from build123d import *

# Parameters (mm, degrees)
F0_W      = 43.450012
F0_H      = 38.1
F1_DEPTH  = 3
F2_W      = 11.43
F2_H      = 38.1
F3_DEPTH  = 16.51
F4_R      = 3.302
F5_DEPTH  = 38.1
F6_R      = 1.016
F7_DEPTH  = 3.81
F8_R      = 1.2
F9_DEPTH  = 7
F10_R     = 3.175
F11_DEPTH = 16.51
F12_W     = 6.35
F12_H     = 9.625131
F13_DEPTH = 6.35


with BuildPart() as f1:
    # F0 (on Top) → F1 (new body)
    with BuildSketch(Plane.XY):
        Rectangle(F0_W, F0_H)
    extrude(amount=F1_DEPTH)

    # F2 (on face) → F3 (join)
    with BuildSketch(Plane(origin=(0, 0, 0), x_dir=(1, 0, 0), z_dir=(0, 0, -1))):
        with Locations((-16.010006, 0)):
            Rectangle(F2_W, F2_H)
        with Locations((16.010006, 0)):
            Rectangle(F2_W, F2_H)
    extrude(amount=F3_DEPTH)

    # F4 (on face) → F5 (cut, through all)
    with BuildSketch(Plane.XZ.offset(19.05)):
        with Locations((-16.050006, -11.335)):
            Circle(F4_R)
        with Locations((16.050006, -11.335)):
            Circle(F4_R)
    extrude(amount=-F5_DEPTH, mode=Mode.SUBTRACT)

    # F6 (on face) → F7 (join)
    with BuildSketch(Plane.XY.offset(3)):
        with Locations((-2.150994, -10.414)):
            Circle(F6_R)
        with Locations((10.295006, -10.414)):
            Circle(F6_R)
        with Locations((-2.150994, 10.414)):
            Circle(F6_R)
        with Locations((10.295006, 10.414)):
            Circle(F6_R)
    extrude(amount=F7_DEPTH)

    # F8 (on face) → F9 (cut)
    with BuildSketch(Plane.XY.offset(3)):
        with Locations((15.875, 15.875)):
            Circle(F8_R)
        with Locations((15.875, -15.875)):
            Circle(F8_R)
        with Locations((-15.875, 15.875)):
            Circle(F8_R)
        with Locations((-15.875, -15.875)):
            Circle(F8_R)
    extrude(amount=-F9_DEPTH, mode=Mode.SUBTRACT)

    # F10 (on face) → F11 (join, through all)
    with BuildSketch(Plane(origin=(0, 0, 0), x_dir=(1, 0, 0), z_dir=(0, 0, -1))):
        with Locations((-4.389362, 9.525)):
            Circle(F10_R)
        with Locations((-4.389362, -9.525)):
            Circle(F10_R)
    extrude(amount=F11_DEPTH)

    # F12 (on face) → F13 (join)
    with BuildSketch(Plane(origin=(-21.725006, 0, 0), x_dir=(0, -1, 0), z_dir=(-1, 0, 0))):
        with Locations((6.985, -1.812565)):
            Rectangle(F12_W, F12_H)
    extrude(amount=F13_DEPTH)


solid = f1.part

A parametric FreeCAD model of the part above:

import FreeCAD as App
import Part
import Sketcher

V = App.Vector
Q = App.Units.Quantity

doc = App.newDocument("Part")
params = doc.addObject("Spreadsheet::Sheet", "Params")
for row, (alias, value) in enumerate([
    ("sketch1_height", "1.5 in"),
    ("pad1_length", "3 mm"),
    ("sketch2_height", "1.5 in"),
    ("sketch2_width", "0.45 in"),
    ("pad2_length", "0.65 in"),
    ("sketch3_diameter", "0.26 in"),
    ("sketch4_diameter", "0.08 in"),
    ("pad3_length", "0.15 in"),
    ("pocket2_length", "7 mm"),
    ("sketch6_diameter", "0.25 in"),
    ("pad4_length", "0.65 in"),
    ("sketch7_width", "0.25 in"),
    ("pad5_length", "0.25 in"),
], start=1):
    params.set(f"A{row}", alias)
    params.set(f"B{row}", "=" + value)
    params.setAlias(f"B{row}", alias)

body = doc.addObject("PartDesign::Body", "Body")

sketch1 = body.newObject("Sketcher::SketchObject", "Sketch")
sketch1.AttachmentSupport = (doc.getObject("XY_Plane"), [""])
sketch1.MapMode = "FlatFace"
sketch1.addGeometry([
    Part.LineSegment(V(-22, 19, 0), V(-22, -19, 0)),
    Part.LineSegment(V(-22, -19, 0), V(22, -19, 0)),
    Part.LineSegment(V(22, -19, 0), V(22, 19, 0)),
    Part.LineSegment(V(22, 19, 0), V(-22, 19, 0)),
], False)
sketch1.addConstraint([
    Sketcher.Constraint("Coincident", 0, 2, 1, 1),
    Sketcher.Constraint("Coincident", 1, 2, 2, 1),
    Sketcher.Constraint("Coincident", 2, 2, 3, 1),
    Sketcher.Constraint("Coincident", 3, 2, 0, 1),
    Sketcher.Constraint("Vertical", 0),
    Sketcher.Constraint("Horizontal", 1),
    Sketcher.Constraint("Vertical", 2),
    Sketcher.Constraint("Horizontal", 3),
    Sketcher.Constraint("Symmetric", 0, 2, 2, 2, -1, 1),
    Sketcher.Constraint("DistanceY", 0, 2, 0, 1, Q("1.5 in")),
    Sketcher.Constraint("DistanceX", 1, 1, 1, 2, Q("43.450012 mm")),
])
sketch1.setExpression("Constraints[9]", "Params.sketch1_height")
pad1 = body.newObject("PartDesign::Pad", "Pad")
pad1.Profile = sketch1
pad1.setExpression("Length", "Params.pad1_length")

sketch2 = body.newObject("Sketcher::SketchObject", "Sketch001")
sketch2.AttachmentSupport = (doc.getObject("XY_Plane"), [""])
sketch2.MapMode = "FlatFace"
sketch2.addGeometry([
    Part.LineSegment(V(-22, -19, 0), V(-22, 19, 0)),
    Part.LineSegment(V(-22, 19, 0), V(-10, 19, 0)),
    Part.LineSegment(V(-10, 19, 0), V(-10, -19, 0)),
    Part.LineSegment(V(-10, -19, 0), V(-22, -19, 0)),
    Part.LineSegment(V(10, -19, 0), V(10, 19, 0)),
    Part.LineSegment(V(10, 19, 0), V(22, 19, 0)),
    Part.LineSegment(V(22, 19, 0), V(22, -19, 0)),
    Part.LineSegment(V(22, -19, 0), V(10, -19, 0)),
], False)
sketch2.addConstraint([
    Sketcher.Constraint("Coincident", 0, 2, 1, 1),
    Sketcher.Constraint("Coincident", 1, 2, 2, 1),
    Sketcher.Constraint("Coincident", 2, 2, 3, 1),
    Sketcher.Constraint("Coincident", 3, 2, 0, 1),
    Sketcher.Constraint("Coincident", 4, 2, 5, 1),
    Sketcher.Constraint("Coincident", 5, 2, 6, 1),
    Sketcher.Constraint("Coincident", 6, 2, 7, 1),
    Sketcher.Constraint("Coincident", 7, 2, 4, 1),
    Sketcher.Constraint("Vertical", 0),
    Sketcher.Constraint("Horizontal", 1),
    Sketcher.Constraint("Vertical", 2),
    Sketcher.Constraint("Horizontal", 3),
    Sketcher.Constraint("Vertical", 4),
    Sketcher.Constraint("Horizontal", 5),
    Sketcher.Constraint("Vertical", 6),
    Sketcher.Constraint("Horizontal", 7),
    Sketcher.Constraint("Symmetric", 2, 2, 4, 2, -1, 1),
    Sketcher.Constraint("Symmetric", 0, 2, 6, 2, -1, 1),
    Sketcher.Constraint("Horizontal", 1, 2, 4, 2),
    Sketcher.Constraint("DistanceY", 0, 1, 0, 2, Q("1.5 in")),
    Sketcher.Constraint("DistanceX", 1, 1, 1, 2, Q("0.45 in")),
    Sketcher.Constraint("DistanceX", 0, 2, -1, 1, Q("21.725006 mm")),
])
sketch2.setExpression("Constraints[19]", "Params.sketch2_height")
sketch2.setExpression("Constraints[20]", "Params.sketch2_width")
pad2 = body.newObject("PartDesign::Pad", "Pad001")
pad2.Profile = sketch2
pad2.setExpression("Length", "Params.pad2_length")
pad2.Reversed = True

sketch3 = body.newObject("Sketcher::SketchObject", "Sketch002")
sketch3.AttachmentSupport = (doc.getObject("XZ_Plane"), [""])
sketch3.MapMode = "FlatFace"
sketch3.AttachmentOffset = App.Placement(V(0, 0, 0.75 * 25.4), App.Rotation())
sketch3.addGeometry([
    Part.Circle(V(-16.1, -11.3, 0), V(0, 0, 1), 3.3),
    Part.Circle(V(16.1, -11.3, 0), V(0, 0, 1), 3.3),
], False)
sketch3.addConstraint([
    Sketcher.Constraint("Equal", 0, 1),
    Sketcher.Constraint("Symmetric", 0, 3, 1, 3, -2),
    Sketcher.Constraint("Diameter", 0, Q("0.26 in")),
    Sketcher.Constraint("DistanceY", 0, 3, -1, 1, Q("11.335 mm")),
    Sketcher.Constraint("DistanceX", 0, 3, -1, 1, Q("16.050006 mm")),
])
sketch3.setExpression("Constraints[2]", "Params.sketch3_diameter")
pocket1 = body.newObject("PartDesign::Pocket", "Pocket")
pocket1.Profile = sketch3
pocket1.Type = "ThroughAll"

sketch4 = body.newObject("Sketcher::SketchObject", "Sketch003")
sketch4.AttachmentSupport = (doc.getObject("XY_Plane"), [""])
sketch4.MapMode = "FlatFace"
sketch4.AttachmentOffset = App.Placement(V(0, 0, 3), App.Rotation())
sketch4.addGeometry([
    Part.Circle(V(-2.2, -10.4, 0), V(0, 0, 1), 1),
    Part.Circle(V(10.3, -10.4, 0), V(0, 0, 1), 1),
    Part.Circle(V(-2.2, 10.4, 0), V(0, 0, 1), 1),
    Part.Circle(V(10.3, 10.4, 0), V(0, 0, 1), 1),
], False)
sketch4.addConstraint([
    Sketcher.Constraint("Equal", 0, 1),
    Sketcher.Constraint("Equal", 1, 2),
    Sketcher.Constraint("Equal", 2, 3),
    Sketcher.Constraint("Symmetric", 0, 3, 2, 3, -1),
    Sketcher.Constraint("Symmetric", 1, 3, 3, 3, -1),
    Sketcher.Constraint("Horizontal", 0, 3, 1, 3),
    Sketcher.Constraint("Diameter", 0, Q("0.08 in")),
    Sketcher.Constraint("DistanceY", 0, 3, -1, 1, Q("0.41 in")),
    Sketcher.Constraint("DistanceX", 0, 3, 1, 3, Q("0.49 in")),
    Sketcher.Constraint("DistanceX", 0, 3, -1, 1, Q("2.150994 mm")),
])
sketch4.setExpression("Constraints[6]", "Params.sketch4_diameter")
pad3 = body.newObject("PartDesign::Pad", "Pad002")
pad3.Profile = sketch4
pad3.setExpression("Length", "Params.pad3_length")

sketch5 = body.newObject("Sketcher::SketchObject", "Sketch004")
sketch5.AttachmentSupport = (doc.getObject("XY_Plane"), [""])
sketch5.MapMode = "FlatFace"
sketch5.AttachmentOffset = App.Placement(V(0, 0, 3), App.Rotation())
sketch5.addGeometry([
    Part.Circle(V(15.9, 15.9, 0), V(0, 0, 1), 1.2),
    Part.Circle(V(15.9, -15.9, 0), V(0, 0, 1), 1.2),
    Part.Circle(V(-15.9, 15.9, 0), V(0, 0, 1), 1.2),
    Part.Circle(V(-15.9, -15.9, 0), V(0, 0, 1), 1.2),
], False)
sketch5.addConstraint([
    Sketcher.Constraint("Equal", 0, 1),
    Sketcher.Constraint("Equal", 1, 2),
    Sketcher.Constraint("Equal", 2, 3),
    Sketcher.Constraint("Symmetric", 1, 3, 2, 3, -1, 1),
    Sketcher.Constraint("Symmetric", 0, 3, 3, 3, -1, 1),
    Sketcher.Constraint("Symmetric", 0, 3, 2, 3, -2),
    Sketcher.Constraint("Diameter", 0, Q("2.4 mm")),
    Sketcher.Constraint("DistanceY", 1, 3, 0, 3, Q("1.25 in")),
    Sketcher.Constraint("DistanceX", 2, 3, 0, 3, Q("1.25 in")),
])
pocket2 = body.newObject("PartDesign::Pocket", "Pocket001")
pocket2.Profile = sketch5
pocket2.setExpression("Length", "Params.pocket2_length")

sketch6 = body.newObject("Sketcher::SketchObject", "Sketch005")
sketch6.AttachmentSupport = (doc.getObject("XY_Plane"), [""])
sketch6.MapMode = "FlatFace"
sketch6.addGeometry([
    Part.Circle(V(-4.4, -9.5, 0), V(0, 0, 1), 3.2),
    Part.Circle(V(-4.4, 9.5, 0), V(0, 0, 1), 3.2),
], False)
sketch6.addConstraint([
    Sketcher.Constraint("Equal", 0, 1),
    Sketcher.Constraint("Symmetric", 0, 3, 1, 3, -1),
    Sketcher.Constraint("Diameter", 0, Q("0.25 in")),
    Sketcher.Constraint("DistanceY", 0, 3, 1, 3, Q("0.75 in")),
    Sketcher.Constraint("DistanceX", 0, 3, -1, 1, Q("4.389362 mm")),
])
sketch6.setExpression("Constraints[2]", "Params.sketch6_diameter")
pad4 = body.newObject("PartDesign::Pad", "Pad003")
pad4.Profile = sketch6
pad4.setExpression("Length", "Params.pad4_length")
pad4.Reversed = True

sketch7 = body.newObject("Sketcher::SketchObject", "Sketch006")
sketch7.AttachmentSupport = (doc.getObject("YZ_Plane"), [""])
sketch7.MapMode = "FlatFace"
sketch7.AttachmentOffset = App.Placement(V(0, 0, -21.725006), App.Rotation())
sketch7.addGeometry([
    Part.LineSegment(V(-4, 3, 0), V(-4, -7, 0)),
    Part.LineSegment(V(-4, -7, 0), V(-10, -7, 0)),
    Part.LineSegment(V(-10, -7, 0), V(-10, 3, 0)),
    Part.LineSegment(V(-10, 3, 0), V(-4, 3, 0)),
], False)
sketch7.addConstraint([
    Sketcher.Constraint("Coincident", 0, 2, 1, 1),
    Sketcher.Constraint("Coincident", 1, 2, 2, 1),
    Sketcher.Constraint("Coincident", 2, 2, 3, 1),
    Sketcher.Constraint("Coincident", 3, 2, 0, 1),
    Sketcher.Constraint("Vertical", 0),
    Sketcher.Constraint("Horizontal", 1),
    Sketcher.Constraint("Vertical", 2),
    Sketcher.Constraint("Horizontal", 3),
    Sketcher.Constraint("DistanceX", 1, 2, 1, 1, Q("0.25 in")),
    Sketcher.Constraint("DistanceX", 1, 2, -1, 1, Q("0.4 in")),
    Sketcher.Constraint("DistanceY", 0, 2, 0, 1, Q("9.625131 mm")),
    Sketcher.Constraint("DistanceY", -1, 1, 2, 2, Q("3.000001 mm")),
])
sketch7.setExpression("Constraints[8]", "Params.sketch7_width")
pad5 = body.newObject("PartDesign::Pad", "Pad004")
pad5.Profile = sketch7
pad5.setExpression("Length", "Params.pad5_length")
pad5.Reversed = True

doc.recompute()
